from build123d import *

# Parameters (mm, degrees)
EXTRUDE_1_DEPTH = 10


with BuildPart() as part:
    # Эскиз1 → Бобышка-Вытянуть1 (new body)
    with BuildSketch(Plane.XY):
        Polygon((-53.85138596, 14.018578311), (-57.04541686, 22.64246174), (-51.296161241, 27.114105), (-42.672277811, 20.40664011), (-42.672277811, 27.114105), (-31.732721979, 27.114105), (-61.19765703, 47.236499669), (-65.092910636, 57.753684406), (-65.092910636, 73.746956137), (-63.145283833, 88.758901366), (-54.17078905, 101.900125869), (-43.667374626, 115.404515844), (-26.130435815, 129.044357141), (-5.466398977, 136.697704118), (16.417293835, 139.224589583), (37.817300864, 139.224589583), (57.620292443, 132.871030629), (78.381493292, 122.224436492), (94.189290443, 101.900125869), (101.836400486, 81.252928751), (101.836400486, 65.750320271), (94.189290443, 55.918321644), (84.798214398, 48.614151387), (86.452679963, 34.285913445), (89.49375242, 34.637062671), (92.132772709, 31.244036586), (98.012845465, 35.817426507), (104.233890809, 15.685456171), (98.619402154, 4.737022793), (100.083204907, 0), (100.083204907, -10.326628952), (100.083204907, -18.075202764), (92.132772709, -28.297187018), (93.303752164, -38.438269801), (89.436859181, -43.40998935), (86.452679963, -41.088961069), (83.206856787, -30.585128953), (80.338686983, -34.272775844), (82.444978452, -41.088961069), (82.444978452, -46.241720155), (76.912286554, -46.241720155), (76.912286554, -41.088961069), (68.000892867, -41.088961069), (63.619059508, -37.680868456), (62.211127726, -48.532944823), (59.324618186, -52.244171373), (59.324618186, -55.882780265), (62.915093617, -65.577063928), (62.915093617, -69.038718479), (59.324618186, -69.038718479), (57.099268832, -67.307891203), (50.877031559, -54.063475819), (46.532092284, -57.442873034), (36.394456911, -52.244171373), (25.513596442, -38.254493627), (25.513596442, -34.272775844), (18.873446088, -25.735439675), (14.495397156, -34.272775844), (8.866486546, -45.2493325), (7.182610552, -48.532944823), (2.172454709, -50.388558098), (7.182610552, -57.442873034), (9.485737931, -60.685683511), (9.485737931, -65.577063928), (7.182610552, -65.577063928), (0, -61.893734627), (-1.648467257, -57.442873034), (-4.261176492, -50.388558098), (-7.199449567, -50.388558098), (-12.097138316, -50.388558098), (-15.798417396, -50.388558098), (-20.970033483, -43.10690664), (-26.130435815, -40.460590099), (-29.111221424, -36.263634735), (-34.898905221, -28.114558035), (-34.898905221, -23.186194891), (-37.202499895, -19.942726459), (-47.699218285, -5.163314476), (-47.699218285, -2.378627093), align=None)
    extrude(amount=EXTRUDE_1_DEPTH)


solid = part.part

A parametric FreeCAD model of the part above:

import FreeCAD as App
import Part
import Sketcher

doc = App.newDocument("Part")
body = doc.addObject("PartDesign::Body", "Body")

# Sketch on XY plane
sketch1 = body.newObject("Sketcher::SketchObject", "Sketch")
sketch1.AttachmentSupport = (doc.getObject("XY_Plane"), [""])
sketch1.MapMode = "FlatFace"
sketch1.addGeometry([
    Part.LineSegment(App.Vector(-57.045417, 22.642462, 0), App.Vector(-53.851386, 14.018578, 0)),  # 0
    Part.LineSegment(App.Vector(-53.851386, 14.018578, 0), App.Vector(-47.699218, -2.378627, 0)),  # 1
    Part.LineSegment(App.Vector(-47.699218, -2.378627, 0), App.Vector(-47.699218, -5.163314, 0)),  # 2
    Part.LineSegment(App.Vector(-47.699218, -5.163314, 0), App.Vector(-37.2025, -19.942726, 0)),  # 3
    Part.LineSegment(App.Vector(-37.2025, -19.942726, 0), App.Vector(-34.898905, -23.186195, 0)),  # 4
    Part.LineSegment(App.Vector(-34.898905, -23.186195, 0), App.Vector(-34.898905, -28.114558, 0)),  # 5
    Part.LineSegment(App.Vector(-34.898905, -28.114558, 0), App.Vector(-29.111221, -36.263635, 0)),  # 6
    Part.LineSegment(App.Vector(-29.111221, -36.263635, 0), App.Vector(-26.130436, -40.46059, 0)),  # 7
    Part.LineSegment(App.Vector(-26.130436, -40.46059, 0), App.Vector(-20.970033, -43.106907, 0)),  # 8
    Part.LineSegment(App.Vector(-20.970033, -43.106907, 0), App.Vector(-15.798417, -50.388558, 0)),  # 9
    Part.LineSegment(App.Vector(-15.798417, -50.388558, 0), App.Vector(-4.261176, -50.388558, 0)),  # 10
    Part.LineSegment(App.Vector(-4.261176, -50.388558, 0), App.Vector(-1.648467, -57.442873, 0)),  # 11
    Part.LineSegment(App.Vector(-1.648467, -57.442873, 0), App.Vector(0, -61.893735, 0)),  # 12
    Part.LineSegment(App.Vector(0, -61.893735, 0), App.Vector(7.182611, -65.577064, 0)),  # 13
    Part.LineSegment(App.Vector(7.182611, -65.577064, 0), App.Vector(9.485738, -65.577064, 0)),  # 14
    Part.LineSegment(App.Vector(9.485738, -65.577064, 0), App.Vector(9.485738, -60.685684, 0)),  # 15
    Part.LineSegment(App.Vector(9.485738, -60.685684, 0), App.Vector(7.182611, -57.442873, 0)),  # 16
    Part.LineSegment(App.Vector(7.182611, -57.442873, 0), App.Vector(2.172455, -50.388558, 0)),  # 17
    Part.LineSegment(App.Vector(2.172455, -50.388558, 0), App.Vector(7.182611, -48.532945, 0)),  # 18
    Part.LineSegment(App.Vector(7.182611, -48.532945, 0), App.Vector(8.866487, -45.249333, 0)),  # 19
    Part.LineSegment(App.Vector(8.866487, -45.249333, 0), App.Vector(14.495397, -34.272776, 0)),  # 20
    Part.LineSegment(App.Vector(14.495397, -34.272776, 0), App.Vector(18.873446, -25.73544, 0)),  # 21
    Part.LineSegment(App.Vector(18.873446, -25.73544, 0), App.Vector(25.513596, -34.272776, 0)),  # 22
    Part.LineSegment(App.Vector(25.513596, -34.272776, 0), App.Vector(25.513596, -38.254494, 0)),  # 23
    Part.LineSegment(App.Vector(25.513596, -38.254494, 0), App.Vector(36.394457, -52.244171, 0)),  # 24
    Part.LineSegment(App.Vector(36.394457, -52.244171, 0), App.Vector(46.532092, -57.442873, 0)),  # 25
    Part.LineSegment(App.Vector(46.532092, -57.442873, 0), App.Vector(50.877032, -54.063476, 0)),  # 26
    Part.LineSegment(App.Vector(50.877032, -54.063476, 0), App.Vector(57.099269, -67.307891, 0)),  # 27
    Part.LineSegment(App.Vector(57.099269, -67.307891, 0), App.Vector(59.324618, -69.038718, 0)),  # 28
    Part.LineSegment(App.Vector(59.324618, -69.038718, 0), App.Vector(62.915094, -69.038718, 0)),  # 29
    Part.LineSegment(App.Vector(62.915094, -69.038718, 0), App.Vector(62.915094, -65.577064, 0)),  # 30
    Part.LineSegment(App.Vector(62.915094, -65.577064, 0), App.Vector(59.324618, -55.88278, 0)),  # 31
    Part.LineSegment(App.Vector(59.324618, -55.88278, 0), App.Vector(59.324618, -52.244171, 0)),  # 32
    Part.LineSegment(App.Vector(59.324618, -52.244171, 0), App.Vector(62.211128, -48.532945, 0)),  # 33
    Part.LineSegment(App.Vector(62.211128, -48.532945, 0), App.Vector(63.61906, -37.680868, 0)),  # 34
    Part.LineSegment(App.Vector(63.61906, -37.680868, 0), App.Vector(68.000893, -41.088961, 0)),  # 35
    Part.LineSegment(App.Vector(68.000893, -41.088961, 0), App.Vector(76.912287, -41.088961, 0)),  # 36
    Part.LineSegment(App.Vector(76.912287, -41.088961, 0), App.Vector(76.912287, -46.24172, 0)),  # 37
    Part.LineSegment(App.Vector(76.912287, -46.24172, 0), App.Vector(82.444978, -46.24172, 0)),  # 38
    Part.LineSegment(App.Vector(82.444978, -46.24172, 0), App.Vector(82.444978, -41.088961, 0)),  # 39
    Part.LineSegment(App.Vector(82.444978, -41.088961, 0), App.Vector(80.338687, -34.272776, 0)),  # 40
    Part.LineSegment(App.Vector(80.338687, -34.272776, 0), App.Vector(83.206857, -30.585129, 0)),  # 41
    Part.LineSegment(App.Vector(83.206857, -30.585129, 0), App.Vector(86.45268, -41.088961, 0)),  # 42
    Part.LineSegment(App.Vector(86.45268, -41.088961, 0), App.Vector(89.436859, -43.409989, 0)),  # 43
    Part.LineSegment(App.Vector(89.436859, -43.409989, 0), App.Vector(93.303752, -38.43827, 0)),  # 44
    Part.LineSegment(App.Vector(93.303752, -38.43827, 0), App.Vector(92.132773, -28.297187, 0)),  # 45
    Part.LineSegment(App.Vector(92.132773, -28.297187, 0), App.Vector(100.083205, -18.075203, 0)),  # 46
    Part.LineSegment(App.Vector(100.083205, -18.075203, 0), App.Vector(100.083205, 0, 0)),  # 47
    Part.LineSegment(App.Vector(100.083205, 0, 0), App.Vector(98.619402, 4.737023, 0)),  # 48
    Part.LineSegment(App.Vector(98.619402, 4.737023, 0), App.Vector(104.233891, 15.685456, 0)),  # 49
    Part.LineSegment(App.Vector(104.233891, 15.685456, 0), App.Vector(98.012845, 35.817427, 0)),  # 50
    Part.LineSegment(App.Vector(98.012845, 35.817427, 0), App.Vector(92.132773, 31.244037, 0)),  # 51
    Part.LineSegment(App.Vector(92.132773, 31.244037, 0), App.Vector(89.493752, 34.637063, 0)),  # 52
    Part.LineSegment(App.Vector(89.493752, 34.637063, 0), App.Vector(86.45268, 34.285913, 0)),  # 53
    Part.LineSegment(App.Vector(86.45268, 34.285913, 0), App.Vector(84.798214, 48.614151, 0)),  # 54
    Part.LineSegment(App.Vector(84.798214, 48.614151, 0), App.Vector(94.18929, 55.918322, 0)),  # 55
    Part.LineSegment(App.Vector(94.18929, 55.918322, 0), App.Vector(101.8364, 65.75032, 0)),  # 56
    Part.LineSegment(App.Vector(101.8364, 65.75032, 0), App.Vector(101.8364, 81.252929, 0)),  # 57
    Part.LineSegment(App.Vector(101.8364, 81.252929, 0), App.Vector(94.18929, 101.900126, 0)),  # 58
    Part.LineSegment(App.Vector(94.18929, 101.900126, 0), App.Vector(78.381493, 122.224436, 0)),  # 59
    Part.LineSegment(App.Vector(78.381493, 122.224436, 0), App.Vector(57.620292, 132.871031, 0)),  # 60
    Part.LineSegment(App.Vector(57.620292, 132.871031, 0), App.Vector(37.817301, 139.22459, 0)),  # 61
    Part.LineSegment(App.Vector(37.817301, 139.22459, 0), App.Vector(16.417294, 139.22459, 0)),  # 62
    Part.LineSegment(App.Vector(16.417294, 139.22459, 0), App.Vector(-5.466399, 136.697704, 0)),  # 63
    Part.LineSegment(App.Vector(-5.466399, 136.697704, 0), App.Vector(-26.130436, 129.044357, 0)),  # 64
    Part.LineSegment(App.Vector(-26.130436, 129.044357, 0), App.Vector(-43.667375, 115.404516, 0)),  # 65
    Part.LineSegment(App.Vector(-43.667375, 115.404516, 0), App.Vector(-54.170789, 101.900126, 0)),  # 66
    Part.LineSegment(App.Vector(-54.170789, 101.900126, 0), App.Vector(-63.145284, 88.758901, 0)),  # 67
    Part.LineSegment(App.Vector(-63.145284, 88.758901, 0), App.Vector(-65.092911, 73.746956, 0)),  # 68
    Part.LineSegment(App.Vector(-65.092911, 73.746956, 0), App.Vector(-65.092911, 57.753684, 0)),  # 69
    Part.LineSegment(App.Vector(-65.092911, 57.753684, 0), App.Vector(-61.197657, 47.2365, 0)),  # 70
    Part.LineSegment(App.Vector(-61.197657, 47.2365, 0), App.Vector(-31.732722, 27.114105, 0)),  # 71
    Part.LineSegment(App.Vector(-31.732722, 27.114105, 0), App.Vector(-42.672278, 27.114105, 0)),  # 72
    Part.LineSegment(App.Vector(-42.672278, 27.114105, 0), App.Vector(-42.672278, 20.40664, 0)),  # 73
    Part.LineSegment(App.Vector(-42.672278, 20.40664, 0), App.Vector(-51.296161, 27.114105, 0)),  # 74
    Part.LineSegment(App.Vector(-51.296161, 27.114105, 0), App.Vector(-57.045417, 22.642462, 0)),  # 75
], False)
sketch1.addConstraint([
    Sketcher.Constraint("Coincident", 0, 2, 1, 1),
    Sketcher.Constraint("Coincident", 1, 2, 2, 1),
    Sketcher.Constraint("Coincident", 2, 2, 3, 1),
    Sketcher.Constraint("Coincident", 3, 2, 4, 1),
    Sketcher.Constraint("Coincident", 4, 2, 5, 1),
    Sketcher.Constraint("Coincident", 5, 2, 6, 1),
    Sketcher.Constraint("Coincident", 6, 2, 7, 1),
    Sketcher.Constraint("Coincident", 7, 2, 8, 1),
    Sketcher.Constraint("Coincident", 8, 2, 9, 1),
    Sketcher.Constraint("Coincident", 9, 2, 10, 1),
    Sketcher.Constraint("Coincident", 10, 2, 11, 1),
    Sketcher.Constraint("Coincident", 11, 2, 12, 1),
    Sketcher.Constraint("Coincident", 12, 2, 13, 1),
    Sketcher.Constraint("Coincident", 13, 2, 14, 1),
    Sketcher.Constraint("Coincident", 14, 2, 15, 1),
    Sketcher.Constraint("Coincident", 15, 2, 16, 1),
    Sketcher.Constraint("Coincident", 16, 2, 17, 1),
    Sketcher.Constraint("Coincident", 17, 2, 18, 1),
    Sketcher.Constraint("Coincident", 18, 2, 19, 1),
    Sketcher.Constraint("Coincident", 19, 2, 20, 1),
    Sketcher.Constraint("Coincident", 20, 2, 21, 1),
    Sketcher.Constraint("Coincident", 21, 2, 22, 1),
    Sketcher.Constraint("Coincident", 22, 2, 23, 1),
    Sketcher.Constraint("Coincident", 23, 2, 24, 1),
    Sketcher.Constraint("Coincident", 24, 2, 25, 1),
    Sketcher.Constraint("Coincident", 25, 2, 26, 1),
    Sketcher.Constraint("Coincident", 26, 2, 27, 1),
    Sketcher.Constraint("Coincident", 27, 2, 28, 1),
    Sketcher.Constraint("Coincident", 28, 2, 29, 1),
    Sketcher.Constraint("Coincident", 29, 2, 30, 1),
    Sketcher.Constraint("Coincident", 30, 2, 31, 1),
    Sketcher.Constraint("Coincident", 31, 2, 32, 1),
    Sketcher.Constraint("Coincident", 32, 2, 33, 1),
    Sketcher.Constraint("Coincident", 33, 2, 34, 1),
    Sketcher.Constraint("Coincident", 34, 2, 35, 1),
    Sketcher.Constraint("Coincident", 35, 2, 36, 1),
    Sketcher.Constraint("Coincident", 36, 2, 37, 1),
    Sketcher.Constraint("Coincident", 37, 2, 38, 1),
    Sketcher.Constraint("Coincident", 38, 2, 39, 1),
    Sketcher.Constraint("Coincident", 39, 2, 40, 1),
    Sketcher.Constraint("Coincident", 40, 2, 41, 1),
    Sketcher.Constraint("Coincident", 41, 2, 42, 1),
    Sketcher.Constraint("Coincident", 42, 2, 43, 1),
    Sketcher.Constraint("Coincident", 43, 2, 44, 1),
    Sketcher.Constraint("Coincident", 44, 2, 45, 1),
    Sketcher.Constraint("Coincident", 45, 2, 46, 1),
    Sketcher.Constraint("Coincident", 46, 2, 47, 1),
    Sketcher.Constraint("Coincident", 47, 2, 48, 1),
    Sketcher.Constraint("Coincident", 48, 2, 49, 1),
    Sketcher.Constraint("Coincident", 49, 2, 50, 1),
    Sketcher.Constraint("Coincident", 50, 2, 51, 1),
    Sketcher.Constraint("Coincident", 51, 2, 52, 1),
    Sketcher.Constraint("Coincident", 52, 2, 53, 1),
    Sketcher.Constraint("Coincident", 53, 2, 54, 1),
    Sketcher.Constraint("Coincident", 54, 2, 55, 1),
    Sketcher.Constraint("Coincident", 55, 2, 56, 1),
    Sketcher.Constraint("Coincident", 56, 2, 57, 1),
    Sketcher.Constraint("Coincident", 57, 2, 58, 1),
    Sketcher.Constraint("Coincident", 58, 2, 59, 1),
    Sketcher.Constraint("Coincident", 59, 2, 60, 1),
    Sketcher.Constraint("Coincident", 60, 2, 61, 1),
    Sketcher.Constraint("Coincident", 61, 2, 62, 1),
    Sketcher.Constraint("Coincident", 62, 2, 63, 1),
    Sketcher.Constraint("Coincident", 63, 2, 64, 1),
    Sketcher.Constraint("Coincident", 64, 2, 65, 1),
    Sketcher.Constraint("Coincident", 65, 2, 66, 1),
    Sketcher.Constraint("Coincident", 66, 2, 67, 1),
    Sketcher.Constraint("Coincident", 67, 2, 68, 1),
    Sketcher.Constraint("Coincident", 68, 2, 69, 1),
    Sketcher.Constraint("Coincident", 69, 2, 70, 1),
    Sketcher.Constraint("Coincident", 70, 2, 71, 1),
    Sketcher.Constraint("Coincident", 71, 2, 72, 1),
    Sketcher.Constraint("Coincident", 72, 2, 73, 1),
    Sketcher.Constraint("Coincident", 73, 2, 74, 1),
    Sketcher.Constraint("Coincident", 74, 2, 75, 1),
    Sketcher.Constraint("Coincident", 75, 2, 0, 1),
    Sketcher.Constraint("Vertical", 2),
    Sketcher.Constraint("Vertical", 5),
    Sketcher.Constraint("Horizontal", 10),
    Sketcher.Constraint("Horizontal", 14),
    Sketcher.Constraint("Vertical", 15),
    Sketcher.Constraint("Vertical", 23),
    Sketcher.Constraint("Horizontal", 29),
    Sketcher.Constraint("Vertical", 30),
    Sketcher.Constraint("Vertical", 32),
    Sketcher.Constraint("Horizontal", 36),
    Sketcher.Constraint("Vertical", 37),
    Sketcher.Constraint("Horizontal", 38),
    Sketcher.Constraint("Vertical", 39),
    Sketcher.Constraint("Vertical", 47),
    Sketcher.Constraint("Vertical", 57),
    Sketcher.Constraint("Horizontal", 62),
    Sketcher.Constraint("Vertical", 69),
    Sketcher.Constraint("Horizontal", 72),
    Sketcher.Constraint("Vertical", 73),
    Sketcher.Constraint("PointOnObject", 12, 2, -2),
    Sketcher.Constraint("PointOnObject", 47, 2, -1),
    Sketcher.Constraint("Distance", 25, 11.392899),
    Sketcher.Constraint("Distance", 42, 10.993901),
    Sketcher.Constraint("Distance", 63, 22.029098),
    Sketcher.Constraint("DistanceX", 10, 1, 10, 2, 11.537241),
    Sketcher.Constraint("DistanceX", 38, 1, 38, 2, 5.532692),
    Sketcher.Constraint("DistanceY", 15, 1, 15, 2, 4.89138),
    Sketcher.Constraint("DistanceY", 32, 1, 32, 2, 3.638609),
    Sketcher.Constraint("DistanceY", 37, 2, 37, 1, 5.152759),
    Sketcher.Constraint("DistanceY", 39, 1, 39, 2, 5.152759),
    Sketcher.Constraint("DistanceY", 57, 1, 57, 2, 15.502608),
    Sketcher.Constraint("DistanceY", 69, 2, 69, 1, 15.993272),
    Sketcher.Constraint("DistanceX", 3, 2, -1, 1, 37.2025),
    Sketcher.Constraint("DistanceX", -1, 1, 56, 2, 101.8364),
    Sketcher.Constraint("DistanceX", -1, 1, 61, 2, 37.817301),
    Sketcher.Constraint("DistanceX", 63, 2, -1, 1, 5.466399),
    Sketcher.Constraint("DistanceY", -1, 1, 67, 2, 88.758901),
    Sketcher.Constraint("DistanceY", -1, 1, 70, 2, 47.2365),
    Sketcher.Constraint("Distance", 0, 9.196369),
    Sketcher.Constraint("Distance", 3, 18.127662),
    Sketcher.Constraint("Distance", 4, 3.97827),
    Sketcher.Constraint("Distance", 7, 5.147768),
    Sketcher.Constraint("Distance", 18, 5.342749),
    Sketcher.Constraint("Distance", 28, 2.81921),
    Sketcher.Constraint("Distance", 33, 4.70161),
    Sketcher.Constraint("Distance", 41, 4.671738),
    Sketcher.Constraint("Distance", 44, 6.298481),
    Sketcher.Constraint("Distance", 46, 12.949839),
    Sketcher.Constraint("Distance", 49, 12.304092),
    Sketcher.Constraint("Distance", 50, 21.071251),
    Sketcher.Constraint("Distance", 51, 7.449238),
    Sketcher.Constraint("Distance", 53, 3.061279),
    Sketcher.Constraint("Distance", 54, 14.423441),
    Sketcher.Constraint("Distance", 56, 12.455781),
    Sketcher.Constraint("Distance", 59, 25.748088),
    Sketcher.Constraint("Distance", 68, 15.137759),
    Sketcher.Constraint("Distance", 71, 35.680431),
    Sketcher.Constraint("Distance", 75, 7.283511),
    Sketcher.Constraint("DistanceX", 14, 1, 14, 2, 2.303127),
    Sketcher.Constraint("DistanceX", 29, 1, 29, 2, 3.590475),
    Sketcher.Constraint("DistanceX", 36, 1, 36, 2, 8.911394),
    Sketcher.Constraint("DistanceX", 62, 2, 62, 1, 21.400007),
    Sketcher.Constraint("DistanceX", 72, 2, 72, 1, 10.939556),
    Sketcher.Constraint("DistanceY", 2, 2, 2, 1, 2.784687),
    Sketcher.Constraint("DistanceY", 5, 2, 5, 1, 4.928363),
    Sketcher.Constraint("DistanceY", 23, 2, 23, 1, 3.981718),
    Sketcher.Constraint("DistanceY", 30, 1, 30, 2, 3.461655),
    Sketcher.Constraint("DistanceY", 47, 1, 47, 2, 18.075203),
    Sketcher.Constraint("DistanceY", 73, 2, 73, 1, 6.707465),
    Sketcher.Constraint("DistanceY", -1, 1, 0, 2, 14.018578),
    Sketcher.Constraint("DistanceX", 1, 2, -1, 1, 47.699218),
    Sketcher.Constraint("DistanceY", 5, 2, -1, 1, 28.114558),
    Sketcher.Constraint("DistanceX", 6, 2, -1, 1, 29.111221),
    Sketcher.Constraint("DistanceY", 7, 2, -1, 1, 40.46059),
    Sketcher.Constraint("DistanceY", 9, 2, -1, 1, 50.388558),
    Sketcher.Constraint("DistanceX", -1, 1, 13, 2, 7.182611),
    Sketcher.Constraint("DistanceX", -1, 1, 16, 2, 7.182611),
    Sketcher.Constraint("DistanceY", 17, 2, -1, 1, 50.388558),
    Sketcher.Constraint("DistanceX", -1, 1, 18, 2, 7.182611),
    Sketcher.Constraint("DistanceY", 21, 2, -1, 1, 25.73544),
    Sketcher.Constraint("DistanceY", 24, 2, -1, 1, 52.244171),
    Sketcher.Constraint("DistanceX", -1, 1, 26, 2, 50.877032),
    Sketcher.Constraint("DistanceX", -1, 1, 27, 2, 57.099269),
    Sketcher.Constraint("DistanceY", 27, 2, -1, 1, 67.307891),
    Sketcher.Constraint("DistanceX", -1, 1, 28, 2, 59.324618),
    Sketcher.Constraint("DistanceX", -1, 1, 31, 2, 59.324618),
    Sketcher.Constraint("DistanceY", 31, 2, -1, 1, 55.88278),
    Sketcher.Constraint("DistanceX", -1, 1, 34, 2, 63.61906),
    Sketcher.Constraint("DistanceY", 34, 2, -1, 1, 37.680868),
    Sketcher.Constraint("DistanceY", 35, 2, -1, 1, 41.088961),
    Sketcher.Constraint("DistanceX", -1, 1, 38, 2, 82.444978),
    Sketcher.Constraint("DistanceY", 41, 2, -1, 1, 30.585129),
    Sketcher.Constraint("DistanceX", -1, 1, 42, 2, 86.45268),
    Sketcher.Constraint("DistanceY", 42, 2, -1, 1, 41.088961),
    Sketcher.Constraint("DistanceX", -1, 1, 43, 2, 89.436859),
    Sketcher.Constraint("DistanceY", 43, 2, -1, 1, 43.409989),
    Sketcher.Constraint("DistanceY", 44, 2, -1, 1, 38.43827),
    Sketcher.Constraint("DistanceX", -1, 1, 49, 2, 104.233891),
    Sketcher.Constraint("DistanceX", -1, 1, 53, 2, 86.45268),
    Sketcher.Constraint("DistanceY", -1, 1, 54, 2, 48.614151),
    Sketcher.Constraint("DistanceX", -1, 1, 55, 2, 94.18929),
    Sketcher.Constraint("DistanceY", -1, 1, 55, 2, 55.918322),
    Sketcher.Constraint("DistanceX", -1, 1, 58, 2, 94.18929),
    Sketcher.Constraint("DistanceY", -1, 1, 60, 2, 132.871031),
    Sketcher.Constraint("DistanceY", -1, 1, 61, 2, 139.22459),
    Sketcher.Constraint("DistanceX", 66, 2, -1, 1, 54.170789),
    Sketcher.Constraint("DistanceX", 68, 2, -1, 1, 65.092911),
    Sketcher.Constraint("DistanceX", 71, 2, -1, 1, 31.732722),
    Sketcher.Constraint("DistanceY", -1, 1, 73, 2, 20.40664),
    Sketcher.Constraint("DistanceX", 74, 2, -1, 1, 51.296161),
    Sketcher.Constraint("DistanceY", -1, 1, 75, 2, 22.642462),
    Sketcher.Constraint("Distance", 1, 17.513352),
    Sketcher.Constraint("Distance", 6, 9.995236),
    Sketcher.Constraint("Distance", 8, 5.799374),
    Sketcher.Constraint("Distance", 9, 8.931297),
    Sketcher.Constraint("Distance", 11, 7.522607),
    Sketcher.Constraint("Distance", 12, 4.746326),
    Sketcher.Constraint("Distance", 13, 8.071977),
    Sketcher.Constraint("Distance", 16, 3.977463),
    Sketcher.Constraint("Distance", 17, 8.652457),
    Sketcher.Constraint("Distance", 19, 3.690196),
    Sketcher.Constraint("Distance", 20, 12.335697),
    Sketcher.Constraint("Distance", 21, 9.594447),
    Sketcher.Constraint("Distance", 22, 10.815623),
    Sketcher.Constraint("Distance", 24, 17.722985),
    Sketcher.Constraint("Distance", 26, 5.504437),
    Sketcher.Constraint("Distance", 27, 14.633208),
    Sketcher.Constraint("Distance", 34, 10.943027),
    Sketcher.Constraint("Distance", 40, 7.134202),
    Sketcher.Constraint("Distance", 45, 10.208465),
    Sketcher.Constraint("Distance", 48, 4.958034),
    Sketcher.Constraint("Distance", 52, 4.298494),
    Sketcher.Constraint("Distance", 55, 11.897193),
    Sketcher.Constraint("Distance", 58, 22.017835),
    Sketcher.Constraint("Distance", 60, 23.331897),
    Sketcher.Constraint("Distance", 61, 20.797264),
    Sketcher.Constraint("Distance", 64, 22.035792),
    Sketcher.Constraint("Distance", 65, 22.216874),
    Sketcher.Constraint("Distance", 66, 17.108193),
    Sketcher.Constraint("Distance", 67, 15.913307),
    Sketcher.Constraint("Distance", 70, 11.215354),
    Sketcher.Constraint("Distance", 74, 10.925267),
    Sketcher.Constraint("DistanceX", 8, 2, -1, 1, 20.970033),
    Sketcher.Constraint("DistanceX", 11, 2, -1, 1, 1.648467),
    Sketcher.Constraint("DistanceX", -1, 1, 19, 2, 8.866487),
    Sketcher.Constraint("DistanceX", -1, 1, 20, 2, 14.495397),
    Sketcher.Constraint("DistanceX", -1, 1, 22, 2, 25.513596),
    Sketcher.Constraint("DistanceX", -1, 1, 45, 2, 92.132773),
    Sketcher.Constraint("DistanceX", -1, 1, 48, 2, 98.619402),
    Sketcher.Constraint("DistanceX", -1, 1, 50, 2, 98.012845),
    Sketcher.Constraint("DistanceX", -1, 1, 51, 2, 92.132773),
    Sketcher.Constraint("DistanceX", 64, 2, -1, 1, 26.130436),
])
pad1 = body.newObject("PartDesign::Pad", "Pad")
pad1.Profile = sketch1
pad1.Length = 10

doc.recompute()
